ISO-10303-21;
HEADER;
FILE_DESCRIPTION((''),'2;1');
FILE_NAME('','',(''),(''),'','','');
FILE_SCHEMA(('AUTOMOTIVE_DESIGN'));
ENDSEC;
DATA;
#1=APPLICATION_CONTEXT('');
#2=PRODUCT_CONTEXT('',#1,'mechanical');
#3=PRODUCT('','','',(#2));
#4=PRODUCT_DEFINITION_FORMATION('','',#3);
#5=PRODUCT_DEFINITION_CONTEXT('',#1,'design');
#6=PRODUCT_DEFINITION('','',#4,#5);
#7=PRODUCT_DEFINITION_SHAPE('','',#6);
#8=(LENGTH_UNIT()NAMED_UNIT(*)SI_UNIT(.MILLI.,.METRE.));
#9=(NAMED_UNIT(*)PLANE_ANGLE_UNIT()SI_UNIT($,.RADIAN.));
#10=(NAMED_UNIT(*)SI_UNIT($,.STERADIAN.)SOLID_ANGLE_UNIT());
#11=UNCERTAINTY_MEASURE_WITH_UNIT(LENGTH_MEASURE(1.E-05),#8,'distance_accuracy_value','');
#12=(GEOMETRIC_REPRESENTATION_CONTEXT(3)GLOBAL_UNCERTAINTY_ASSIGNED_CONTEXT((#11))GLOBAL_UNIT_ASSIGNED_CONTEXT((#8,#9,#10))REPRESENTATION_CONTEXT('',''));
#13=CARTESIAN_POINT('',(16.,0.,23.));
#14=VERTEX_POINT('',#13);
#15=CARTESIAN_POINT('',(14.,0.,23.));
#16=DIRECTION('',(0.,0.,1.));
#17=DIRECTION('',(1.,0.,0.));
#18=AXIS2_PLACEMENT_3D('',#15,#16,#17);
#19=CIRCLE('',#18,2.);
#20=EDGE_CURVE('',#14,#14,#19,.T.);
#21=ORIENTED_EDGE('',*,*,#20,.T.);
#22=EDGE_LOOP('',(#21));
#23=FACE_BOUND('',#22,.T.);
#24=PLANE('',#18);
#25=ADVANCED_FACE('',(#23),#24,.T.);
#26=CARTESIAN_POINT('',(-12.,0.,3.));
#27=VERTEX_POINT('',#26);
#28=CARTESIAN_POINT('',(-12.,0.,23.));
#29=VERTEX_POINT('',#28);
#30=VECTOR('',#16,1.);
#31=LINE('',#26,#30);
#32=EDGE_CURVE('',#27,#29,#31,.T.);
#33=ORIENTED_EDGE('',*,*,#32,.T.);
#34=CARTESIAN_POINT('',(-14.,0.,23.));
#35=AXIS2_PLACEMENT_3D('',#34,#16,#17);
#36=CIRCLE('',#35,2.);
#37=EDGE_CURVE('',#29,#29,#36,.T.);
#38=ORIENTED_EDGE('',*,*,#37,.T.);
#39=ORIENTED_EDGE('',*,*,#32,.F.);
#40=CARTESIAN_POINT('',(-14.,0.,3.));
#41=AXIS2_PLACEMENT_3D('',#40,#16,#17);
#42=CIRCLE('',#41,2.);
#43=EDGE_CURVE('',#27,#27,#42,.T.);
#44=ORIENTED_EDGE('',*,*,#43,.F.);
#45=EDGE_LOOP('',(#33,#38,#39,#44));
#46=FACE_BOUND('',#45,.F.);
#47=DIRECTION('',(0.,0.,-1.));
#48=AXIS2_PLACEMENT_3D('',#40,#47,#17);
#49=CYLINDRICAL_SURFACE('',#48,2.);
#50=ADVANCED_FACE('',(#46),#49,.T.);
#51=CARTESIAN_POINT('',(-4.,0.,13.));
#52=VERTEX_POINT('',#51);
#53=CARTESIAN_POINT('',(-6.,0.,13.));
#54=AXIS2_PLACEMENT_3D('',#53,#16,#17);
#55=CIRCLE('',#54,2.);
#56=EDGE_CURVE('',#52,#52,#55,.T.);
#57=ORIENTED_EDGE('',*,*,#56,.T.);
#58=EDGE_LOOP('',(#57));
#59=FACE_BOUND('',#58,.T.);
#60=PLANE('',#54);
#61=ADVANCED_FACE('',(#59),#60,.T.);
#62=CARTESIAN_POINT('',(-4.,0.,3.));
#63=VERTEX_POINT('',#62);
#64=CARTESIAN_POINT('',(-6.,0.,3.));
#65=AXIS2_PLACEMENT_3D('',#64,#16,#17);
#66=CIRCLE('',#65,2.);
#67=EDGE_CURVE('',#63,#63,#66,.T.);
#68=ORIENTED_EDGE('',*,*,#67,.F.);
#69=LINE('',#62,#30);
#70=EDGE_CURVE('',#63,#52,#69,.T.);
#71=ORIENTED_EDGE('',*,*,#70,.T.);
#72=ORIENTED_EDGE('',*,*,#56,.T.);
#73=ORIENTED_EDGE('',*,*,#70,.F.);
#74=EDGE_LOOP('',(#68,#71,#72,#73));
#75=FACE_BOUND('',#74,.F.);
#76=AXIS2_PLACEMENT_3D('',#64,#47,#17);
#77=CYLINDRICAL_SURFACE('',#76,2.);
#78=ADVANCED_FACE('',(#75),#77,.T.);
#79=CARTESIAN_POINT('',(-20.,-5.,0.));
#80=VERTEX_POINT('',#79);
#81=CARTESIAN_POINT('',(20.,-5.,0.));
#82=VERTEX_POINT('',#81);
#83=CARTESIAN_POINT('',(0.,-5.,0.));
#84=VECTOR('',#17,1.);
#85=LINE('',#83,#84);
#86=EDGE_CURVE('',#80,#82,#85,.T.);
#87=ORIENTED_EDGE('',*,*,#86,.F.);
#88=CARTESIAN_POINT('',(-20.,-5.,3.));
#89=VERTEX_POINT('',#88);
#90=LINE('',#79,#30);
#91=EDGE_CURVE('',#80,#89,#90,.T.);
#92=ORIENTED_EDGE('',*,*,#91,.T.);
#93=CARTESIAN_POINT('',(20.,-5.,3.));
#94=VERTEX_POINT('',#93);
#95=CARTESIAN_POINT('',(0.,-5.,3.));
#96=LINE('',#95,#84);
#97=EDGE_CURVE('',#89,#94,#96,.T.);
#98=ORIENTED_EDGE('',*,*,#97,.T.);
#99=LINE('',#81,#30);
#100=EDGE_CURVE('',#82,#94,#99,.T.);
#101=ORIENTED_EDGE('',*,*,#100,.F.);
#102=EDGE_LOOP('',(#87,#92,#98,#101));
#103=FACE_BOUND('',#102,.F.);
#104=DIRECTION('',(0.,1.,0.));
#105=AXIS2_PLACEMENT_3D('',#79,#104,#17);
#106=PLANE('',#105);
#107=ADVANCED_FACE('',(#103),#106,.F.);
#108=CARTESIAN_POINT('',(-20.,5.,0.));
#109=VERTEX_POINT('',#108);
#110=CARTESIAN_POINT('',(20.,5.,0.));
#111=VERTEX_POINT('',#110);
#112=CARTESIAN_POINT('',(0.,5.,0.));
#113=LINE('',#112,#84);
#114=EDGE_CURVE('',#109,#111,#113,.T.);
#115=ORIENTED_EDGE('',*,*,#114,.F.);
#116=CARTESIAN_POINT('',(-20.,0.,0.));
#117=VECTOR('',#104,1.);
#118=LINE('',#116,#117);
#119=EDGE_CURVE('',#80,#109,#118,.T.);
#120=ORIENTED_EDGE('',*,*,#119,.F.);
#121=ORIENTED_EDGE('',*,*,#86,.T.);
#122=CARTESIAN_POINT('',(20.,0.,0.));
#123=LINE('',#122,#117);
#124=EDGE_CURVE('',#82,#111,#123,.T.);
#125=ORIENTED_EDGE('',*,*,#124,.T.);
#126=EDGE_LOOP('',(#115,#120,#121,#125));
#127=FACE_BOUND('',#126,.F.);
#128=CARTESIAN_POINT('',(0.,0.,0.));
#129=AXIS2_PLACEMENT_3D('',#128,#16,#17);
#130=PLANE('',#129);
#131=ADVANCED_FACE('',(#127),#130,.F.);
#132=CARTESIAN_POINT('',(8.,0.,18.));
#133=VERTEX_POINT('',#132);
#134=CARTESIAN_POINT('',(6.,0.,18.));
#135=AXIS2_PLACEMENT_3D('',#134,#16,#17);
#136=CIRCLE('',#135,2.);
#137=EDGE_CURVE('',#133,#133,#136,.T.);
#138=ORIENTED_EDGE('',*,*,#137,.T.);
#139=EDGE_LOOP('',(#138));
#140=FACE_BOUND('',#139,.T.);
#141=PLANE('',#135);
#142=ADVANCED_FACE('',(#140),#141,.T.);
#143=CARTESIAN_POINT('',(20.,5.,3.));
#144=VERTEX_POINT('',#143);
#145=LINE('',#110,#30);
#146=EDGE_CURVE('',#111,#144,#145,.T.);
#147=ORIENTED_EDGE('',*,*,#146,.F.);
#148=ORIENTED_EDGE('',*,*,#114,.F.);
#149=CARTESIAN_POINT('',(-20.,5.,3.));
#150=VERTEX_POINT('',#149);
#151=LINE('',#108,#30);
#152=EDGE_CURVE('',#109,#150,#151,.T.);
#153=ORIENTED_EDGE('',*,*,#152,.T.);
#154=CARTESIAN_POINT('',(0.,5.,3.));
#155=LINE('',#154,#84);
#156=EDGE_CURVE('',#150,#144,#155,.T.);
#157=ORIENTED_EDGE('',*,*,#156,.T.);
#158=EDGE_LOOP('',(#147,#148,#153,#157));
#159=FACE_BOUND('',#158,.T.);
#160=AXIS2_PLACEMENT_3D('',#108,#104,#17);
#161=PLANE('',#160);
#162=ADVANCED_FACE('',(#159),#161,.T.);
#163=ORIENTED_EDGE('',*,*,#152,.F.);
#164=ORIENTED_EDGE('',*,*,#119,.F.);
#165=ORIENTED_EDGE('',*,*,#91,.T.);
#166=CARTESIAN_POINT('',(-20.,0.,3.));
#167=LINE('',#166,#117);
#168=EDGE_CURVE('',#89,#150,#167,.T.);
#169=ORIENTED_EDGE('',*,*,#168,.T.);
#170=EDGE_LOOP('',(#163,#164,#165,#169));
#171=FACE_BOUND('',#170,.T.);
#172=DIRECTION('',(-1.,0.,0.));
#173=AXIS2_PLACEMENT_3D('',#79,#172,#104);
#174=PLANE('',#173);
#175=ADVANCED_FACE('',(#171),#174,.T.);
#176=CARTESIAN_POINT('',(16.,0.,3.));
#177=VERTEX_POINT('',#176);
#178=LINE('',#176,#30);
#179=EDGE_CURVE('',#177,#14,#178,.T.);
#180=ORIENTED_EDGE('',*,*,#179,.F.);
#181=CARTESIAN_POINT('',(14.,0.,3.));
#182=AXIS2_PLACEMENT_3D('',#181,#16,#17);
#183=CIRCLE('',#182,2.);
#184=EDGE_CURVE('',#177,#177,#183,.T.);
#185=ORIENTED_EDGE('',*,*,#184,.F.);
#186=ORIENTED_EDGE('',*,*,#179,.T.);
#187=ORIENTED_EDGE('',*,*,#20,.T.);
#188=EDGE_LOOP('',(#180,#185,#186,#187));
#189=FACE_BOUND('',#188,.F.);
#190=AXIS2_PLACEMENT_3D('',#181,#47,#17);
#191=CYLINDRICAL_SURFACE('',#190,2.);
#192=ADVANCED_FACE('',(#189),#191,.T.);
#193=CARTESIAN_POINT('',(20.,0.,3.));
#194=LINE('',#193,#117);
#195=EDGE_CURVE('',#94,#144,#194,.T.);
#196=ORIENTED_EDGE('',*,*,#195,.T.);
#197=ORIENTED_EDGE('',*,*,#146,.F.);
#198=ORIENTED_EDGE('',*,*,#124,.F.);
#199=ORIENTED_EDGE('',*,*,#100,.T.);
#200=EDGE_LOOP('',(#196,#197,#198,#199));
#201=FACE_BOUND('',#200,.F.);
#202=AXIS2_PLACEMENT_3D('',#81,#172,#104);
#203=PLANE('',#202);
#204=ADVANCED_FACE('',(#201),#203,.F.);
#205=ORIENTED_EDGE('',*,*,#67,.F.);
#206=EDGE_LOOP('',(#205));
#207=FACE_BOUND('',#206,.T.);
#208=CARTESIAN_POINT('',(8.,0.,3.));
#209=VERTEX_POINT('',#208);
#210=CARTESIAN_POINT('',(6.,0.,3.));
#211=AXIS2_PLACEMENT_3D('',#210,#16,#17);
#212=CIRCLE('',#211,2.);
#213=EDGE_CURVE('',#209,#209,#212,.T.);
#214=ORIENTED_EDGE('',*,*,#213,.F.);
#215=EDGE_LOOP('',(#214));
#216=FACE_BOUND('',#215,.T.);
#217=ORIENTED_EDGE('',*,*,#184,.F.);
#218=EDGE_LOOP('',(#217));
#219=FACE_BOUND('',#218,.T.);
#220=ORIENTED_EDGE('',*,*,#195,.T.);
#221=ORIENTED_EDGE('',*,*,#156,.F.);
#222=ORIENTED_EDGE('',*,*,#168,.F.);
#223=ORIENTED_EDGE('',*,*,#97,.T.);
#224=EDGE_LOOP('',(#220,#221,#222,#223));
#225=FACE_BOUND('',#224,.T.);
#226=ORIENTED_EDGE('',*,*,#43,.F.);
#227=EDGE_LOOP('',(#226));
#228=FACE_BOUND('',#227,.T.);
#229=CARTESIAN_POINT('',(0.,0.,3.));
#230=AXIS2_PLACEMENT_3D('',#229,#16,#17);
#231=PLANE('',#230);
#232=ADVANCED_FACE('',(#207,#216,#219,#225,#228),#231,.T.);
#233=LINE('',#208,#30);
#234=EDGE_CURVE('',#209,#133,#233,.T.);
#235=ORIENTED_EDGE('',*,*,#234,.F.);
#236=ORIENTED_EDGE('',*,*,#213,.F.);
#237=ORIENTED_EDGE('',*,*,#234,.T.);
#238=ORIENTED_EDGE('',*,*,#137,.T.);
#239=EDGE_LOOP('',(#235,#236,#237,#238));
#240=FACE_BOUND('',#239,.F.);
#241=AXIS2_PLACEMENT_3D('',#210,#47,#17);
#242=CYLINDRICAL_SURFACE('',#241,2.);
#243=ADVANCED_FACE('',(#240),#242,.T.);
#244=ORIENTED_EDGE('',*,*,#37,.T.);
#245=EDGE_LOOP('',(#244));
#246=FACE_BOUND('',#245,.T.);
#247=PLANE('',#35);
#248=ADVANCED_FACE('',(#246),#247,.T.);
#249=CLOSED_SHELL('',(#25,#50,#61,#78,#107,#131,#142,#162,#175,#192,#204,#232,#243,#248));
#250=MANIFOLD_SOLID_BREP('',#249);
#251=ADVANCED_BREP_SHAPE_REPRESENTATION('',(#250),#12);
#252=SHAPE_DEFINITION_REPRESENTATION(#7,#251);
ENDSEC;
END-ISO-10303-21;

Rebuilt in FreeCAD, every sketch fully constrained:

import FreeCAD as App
import Part
import Sketcher

V = App.Vector
Q = App.Units.Quantity

doc = App.newDocument("Part")
params = doc.addObject("Spreadsheet::Sheet", "Params")
for row, (alias, value) in enumerate([
    ("sketch1_width", "40 mm"),
    ("sketch1_height", "10 mm"),
    ("pad1_length", "3 mm"),
    ("sketch2_diameter", "4 mm"),
    ("pad2_length", "20 mm"),
    ("sketch3_diameter", "4 mm"),
    ("pad3_length", "10 mm"),
    ("sketch4_diameter", "4 mm"),
    ("pad4_length", "15 mm"),
], start=1):
    params.set(f"A{row}", alias)
    params.set(f"B{row}", "=" + value)
    params.setAlias(f"B{row}", alias)

body = doc.addObject("PartDesign::Body", "Body")

sketch1 = body.newObject("Sketcher::SketchObject", "Sketch")
sketch1.AttachmentSupport = (doc.getObject("XY_Plane"), [""])
sketch1.MapMode = "FlatFace"
sketch1.addGeometry(Part.LineSegment(V(-20, 5, 0), V(-20, -5, 0)), False)
sketch1.addGeometry(Part.LineSegment(V(-20, -5, 0), V(20, -5, 0)), False)
sketch1.addGeometry(Part.LineSegment(V(20, -5, 0), V(20, 5, 0)), False)
sketch1.addGeometry(Part.LineSegment(V(20, 5, 0), V(-20, 5, 0)), False)
sketch1.addConstraint(Sketcher.Constraint("Coincident", 0, 2, 1, 1))
sketch1.addConstraint(Sketcher.Constraint("Coincident", 1, 2, 2, 1))
sketch1.addConstraint(Sketcher.Constraint("Coincident", 2, 2, 3, 1))
sketch1.addConstraint(Sketcher.Constraint("Coincident", 3, 2, 0, 1))
sketch1.addConstraint(Sketcher.Constraint("Vertical", 0))
sketch1.addConstraint(Sketcher.Constraint("Horizontal", 1))
sketch1.addConstraint(Sketcher.Constraint("Vertical", 2))
sketch1.addConstraint(Sketcher.Constraint("Horizontal", 3))
sketch1.addConstraint(Sketcher.Constraint("Symmetric", 0, 2, 2, 2, -1, 1))
sketch1.addConstraint(Sketcher.Constraint("DistanceX", 1, 1, 1, 2, Q("40 mm")))
sketch1.addConstraint(Sketcher.Constraint("DistanceY", 0, 2, 0, 1, Q("10 mm")))
sketch1.setExpression("Constraints[9]", "Params.sketch1_width")
sketch1.setExpression("Constraints[10]", "Params.sketch1_height")
pad1 = body.newObject("PartDesign::Pad", "Pad")
pad1.Profile = sketch1
pad1.setExpression("Length", "Params.pad1_length")

sketch2 = body.newObject("Sketcher::SketchObject", "Sketch001")
sketch2.AttachmentSupport = (doc.getObject("XY_Plane"), [""])
sketch2.MapMode = "FlatFace"
sketch2.AttachmentOffset = App.Placement(V(0, 0, 3), App.Rotation())
sketch2.addGeometry(Part.Circle(V(-14, 0, 0), V(0, 0, 1), 2), False)
sketch2.addGeometry(Part.Circle(V(14, 0, 0), V(0, 0, 1), 2), False)
sketch2.addConstraint(Sketcher.Constraint("Equal", 0, 1))
sketch2.addConstraint(Sketcher.Constraint("Symmetric", 0, 3, 1, 3, -1, 1))
sketch2.addConstraint(Sketcher.Constraint("PointOnObject", 0, 3, -1))
sketch2.addConstraint(Sketcher.Constraint("Diameter", 0, Q("4 mm")))
sketch2.addConstraint(Sketcher.Constraint("DistanceX", 0, 3, -1, 1, Q("14 mm")))
sketch2.setExpression("Constraints[3]", "Params.sketch2_diameter")
pad2 = body.newObject("PartDesign::Pad", "Pad001")
pad2.Profile = sketch2
pad2.setExpression("Length", "Params.pad2_length")

sketch3 = body.newObject("Sketcher::SketchObject", "Sketch002")
sketch3.AttachmentSupport = (doc.getObject("XY_Plane"), [""])
sketch3.MapMode = "FlatFace"
sketch3.AttachmentOffset = App.Placement(V(0, 0, 3), App.Rotation())
sketch3.addGeometry(Part.Circle(V(-6, 0, 0), V(0, 0, 1), 2), False)
sketch3.addConstraint(Sketcher.Constraint("PointOnObject", 0, 3, -1))
sketch3.addConstraint(Sketcher.Constraint("Diameter", 0, Q("4 mm")))
sketch3.addConstraint(Sketcher.Constraint("DistanceX", 0, 3, -1, 1, Q("6 mm")))
sketch3.setExpression("Constraints[1]", "Params.sketch3_diameter")
pad3 = body.newObject("PartDesign::Pad", "Pad002")
pad3.Profile = sketch3
pad3.setExpression("Length", "Params.pad3_length")

sketch4 = body.newObject("Sketcher::SketchObject", "Sketch003")
sketch4.AttachmentSupport = (doc.getObject("XY_Plane"), [""])
sketch4.MapMode = "FlatFace"
sketch4.AttachmentOffset = App.Placement(V(0, 0, 3), App.Rotation())
sketch4.addGeometry(Part.Circle(V(6, 0, 0), V(0, 0, 1), 2), False)
sketch4.addConstraint(Sketcher.Constraint("PointOnObject", 0, 3, -1))
sketch4.addConstraint(Sketcher.Constraint("Diameter", 0, Q("4 mm")))
sketch4.addConstraint(Sketcher.Constraint("DistanceX", -1, 1, 0, 3, Q("6 mm")))
sketch4.setExpression("Constraints[1]", "Params.sketch4_diameter")
pad4 = body.newObject("PartDesign::Pad", "Pad003")
pad4.Profile = sketch4
pad4.setExpression("Length", "Params.pad4_length")

doc.recompute()
